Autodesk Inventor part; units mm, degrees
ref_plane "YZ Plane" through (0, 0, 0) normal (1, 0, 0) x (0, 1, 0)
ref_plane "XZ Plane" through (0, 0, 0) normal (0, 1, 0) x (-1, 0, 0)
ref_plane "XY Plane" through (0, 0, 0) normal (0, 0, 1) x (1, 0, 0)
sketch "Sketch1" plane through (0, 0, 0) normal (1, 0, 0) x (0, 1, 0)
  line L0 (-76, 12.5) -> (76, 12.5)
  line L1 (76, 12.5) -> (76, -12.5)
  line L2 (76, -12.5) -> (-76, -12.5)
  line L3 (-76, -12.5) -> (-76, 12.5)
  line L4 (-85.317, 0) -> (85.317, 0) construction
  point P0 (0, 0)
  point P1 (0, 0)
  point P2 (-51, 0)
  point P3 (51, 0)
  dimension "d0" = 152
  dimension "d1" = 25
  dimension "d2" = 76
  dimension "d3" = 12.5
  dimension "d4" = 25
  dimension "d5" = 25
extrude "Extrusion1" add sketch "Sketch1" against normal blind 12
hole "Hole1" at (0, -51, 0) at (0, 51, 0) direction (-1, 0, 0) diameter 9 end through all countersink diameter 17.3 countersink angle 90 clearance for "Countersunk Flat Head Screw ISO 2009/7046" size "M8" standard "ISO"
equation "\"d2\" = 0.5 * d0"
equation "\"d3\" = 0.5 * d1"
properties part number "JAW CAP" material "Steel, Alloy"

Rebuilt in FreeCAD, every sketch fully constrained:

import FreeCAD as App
import Part
import Sketcher

doc = App.newDocument("Part")
body = doc.addObject("PartDesign::Body", "Body")

# Sketch on YZ plane
sketch1 = body.newObject("Sketcher::SketchObject", "Sketch")
sketch1.AttachmentSupport = (doc.getObject("YZ_Plane"), [""])
sketch1.MapMode = "FlatFace"
sketch1.addGeometry([
    Part.LineSegment(App.Vector(76, 12, 0), App.Vector(-76, 12, 0)),
    Part.LineSegment(App.Vector(-76, 12, 0), App.Vector(-76, -12, 0)),
    Part.LineSegment(App.Vector(-76, -12, 0), App.Vector(76, -12, 0)),
    Part.LineSegment(App.Vector(76, -12, 0), App.Vector(76, 12, 0)),
], False)
sketch1.addConstraint([
    Sketcher.Constraint("Coincident", 0, 2, 1, 1),
    Sketcher.Constraint("Coincident", 1, 2, 2, 1),
    Sketcher.Constraint("Coincident", 2, 2, 3, 1),
    Sketcher.Constraint("Coincident", 3, 2, 0, 1),
    Sketcher.Constraint("Horizontal", 0),
    Sketcher.Constraint("Vertical", 1),
    Sketcher.Constraint("Horizontal", 2),
    Sketcher.Constraint("Vertical", 3),
    Sketcher.Constraint("Symmetric", 0, 2, 2, 2, -1, 1),
    Sketcher.Constraint("DistanceX", 0, 2, 0, 1, 152.0),
    Sketcher.Constraint("DistanceY", 1, 2, 1, 1, 25.0),
])
pad1 = body.newObject("PartDesign::Pad", "Pad")
pad1.Profile = sketch1
pad1.Length = 12
pad1.Reversed = True

# Sketch on YZ plane
sketch2 = body.newObject("Sketcher::SketchObject", "Sketch001")
sketch2.AttachmentSupport = (doc.getObject("YZ_Plane"), [""])
sketch2.MapMode = "FlatFace"
sketch2.addGeometry([
    Part.Circle(App.Vector(-51, 0, 0), App.Vector(0, 0, 1), 4.5),
    Part.Circle(App.Vector(51, 0, 0), App.Vector(0, 0, 1), 4.5),
], False)
sketch2.addConstraint([
    Sketcher.Constraint("Equal", 0, 1),
    Sketcher.Constraint("Symmetric", 0, 3, 1, 3, -1, 1),
    Sketcher.Constraint("PointOnObject", 0, 3, -1),
    Sketcher.Constraint("Diameter", 0, 9.0),
    Sketcher.Constraint("DistanceX", 0, 3, -1, 1, 51.0),
])
doc.recompute()
hole = body.newObject("PartDesign::Hole", "Hole")
hole.Profile = sketch2
hole.ThreadType = "None"
hole.Diameter = 9
hole.DepthType = "ThroughAll"
hole.HoleCutType = "Countersink"
hole.HoleCutDiameter = 17.3
hole.HoleCutCountersinkAngle = 90

doc.recompute()
